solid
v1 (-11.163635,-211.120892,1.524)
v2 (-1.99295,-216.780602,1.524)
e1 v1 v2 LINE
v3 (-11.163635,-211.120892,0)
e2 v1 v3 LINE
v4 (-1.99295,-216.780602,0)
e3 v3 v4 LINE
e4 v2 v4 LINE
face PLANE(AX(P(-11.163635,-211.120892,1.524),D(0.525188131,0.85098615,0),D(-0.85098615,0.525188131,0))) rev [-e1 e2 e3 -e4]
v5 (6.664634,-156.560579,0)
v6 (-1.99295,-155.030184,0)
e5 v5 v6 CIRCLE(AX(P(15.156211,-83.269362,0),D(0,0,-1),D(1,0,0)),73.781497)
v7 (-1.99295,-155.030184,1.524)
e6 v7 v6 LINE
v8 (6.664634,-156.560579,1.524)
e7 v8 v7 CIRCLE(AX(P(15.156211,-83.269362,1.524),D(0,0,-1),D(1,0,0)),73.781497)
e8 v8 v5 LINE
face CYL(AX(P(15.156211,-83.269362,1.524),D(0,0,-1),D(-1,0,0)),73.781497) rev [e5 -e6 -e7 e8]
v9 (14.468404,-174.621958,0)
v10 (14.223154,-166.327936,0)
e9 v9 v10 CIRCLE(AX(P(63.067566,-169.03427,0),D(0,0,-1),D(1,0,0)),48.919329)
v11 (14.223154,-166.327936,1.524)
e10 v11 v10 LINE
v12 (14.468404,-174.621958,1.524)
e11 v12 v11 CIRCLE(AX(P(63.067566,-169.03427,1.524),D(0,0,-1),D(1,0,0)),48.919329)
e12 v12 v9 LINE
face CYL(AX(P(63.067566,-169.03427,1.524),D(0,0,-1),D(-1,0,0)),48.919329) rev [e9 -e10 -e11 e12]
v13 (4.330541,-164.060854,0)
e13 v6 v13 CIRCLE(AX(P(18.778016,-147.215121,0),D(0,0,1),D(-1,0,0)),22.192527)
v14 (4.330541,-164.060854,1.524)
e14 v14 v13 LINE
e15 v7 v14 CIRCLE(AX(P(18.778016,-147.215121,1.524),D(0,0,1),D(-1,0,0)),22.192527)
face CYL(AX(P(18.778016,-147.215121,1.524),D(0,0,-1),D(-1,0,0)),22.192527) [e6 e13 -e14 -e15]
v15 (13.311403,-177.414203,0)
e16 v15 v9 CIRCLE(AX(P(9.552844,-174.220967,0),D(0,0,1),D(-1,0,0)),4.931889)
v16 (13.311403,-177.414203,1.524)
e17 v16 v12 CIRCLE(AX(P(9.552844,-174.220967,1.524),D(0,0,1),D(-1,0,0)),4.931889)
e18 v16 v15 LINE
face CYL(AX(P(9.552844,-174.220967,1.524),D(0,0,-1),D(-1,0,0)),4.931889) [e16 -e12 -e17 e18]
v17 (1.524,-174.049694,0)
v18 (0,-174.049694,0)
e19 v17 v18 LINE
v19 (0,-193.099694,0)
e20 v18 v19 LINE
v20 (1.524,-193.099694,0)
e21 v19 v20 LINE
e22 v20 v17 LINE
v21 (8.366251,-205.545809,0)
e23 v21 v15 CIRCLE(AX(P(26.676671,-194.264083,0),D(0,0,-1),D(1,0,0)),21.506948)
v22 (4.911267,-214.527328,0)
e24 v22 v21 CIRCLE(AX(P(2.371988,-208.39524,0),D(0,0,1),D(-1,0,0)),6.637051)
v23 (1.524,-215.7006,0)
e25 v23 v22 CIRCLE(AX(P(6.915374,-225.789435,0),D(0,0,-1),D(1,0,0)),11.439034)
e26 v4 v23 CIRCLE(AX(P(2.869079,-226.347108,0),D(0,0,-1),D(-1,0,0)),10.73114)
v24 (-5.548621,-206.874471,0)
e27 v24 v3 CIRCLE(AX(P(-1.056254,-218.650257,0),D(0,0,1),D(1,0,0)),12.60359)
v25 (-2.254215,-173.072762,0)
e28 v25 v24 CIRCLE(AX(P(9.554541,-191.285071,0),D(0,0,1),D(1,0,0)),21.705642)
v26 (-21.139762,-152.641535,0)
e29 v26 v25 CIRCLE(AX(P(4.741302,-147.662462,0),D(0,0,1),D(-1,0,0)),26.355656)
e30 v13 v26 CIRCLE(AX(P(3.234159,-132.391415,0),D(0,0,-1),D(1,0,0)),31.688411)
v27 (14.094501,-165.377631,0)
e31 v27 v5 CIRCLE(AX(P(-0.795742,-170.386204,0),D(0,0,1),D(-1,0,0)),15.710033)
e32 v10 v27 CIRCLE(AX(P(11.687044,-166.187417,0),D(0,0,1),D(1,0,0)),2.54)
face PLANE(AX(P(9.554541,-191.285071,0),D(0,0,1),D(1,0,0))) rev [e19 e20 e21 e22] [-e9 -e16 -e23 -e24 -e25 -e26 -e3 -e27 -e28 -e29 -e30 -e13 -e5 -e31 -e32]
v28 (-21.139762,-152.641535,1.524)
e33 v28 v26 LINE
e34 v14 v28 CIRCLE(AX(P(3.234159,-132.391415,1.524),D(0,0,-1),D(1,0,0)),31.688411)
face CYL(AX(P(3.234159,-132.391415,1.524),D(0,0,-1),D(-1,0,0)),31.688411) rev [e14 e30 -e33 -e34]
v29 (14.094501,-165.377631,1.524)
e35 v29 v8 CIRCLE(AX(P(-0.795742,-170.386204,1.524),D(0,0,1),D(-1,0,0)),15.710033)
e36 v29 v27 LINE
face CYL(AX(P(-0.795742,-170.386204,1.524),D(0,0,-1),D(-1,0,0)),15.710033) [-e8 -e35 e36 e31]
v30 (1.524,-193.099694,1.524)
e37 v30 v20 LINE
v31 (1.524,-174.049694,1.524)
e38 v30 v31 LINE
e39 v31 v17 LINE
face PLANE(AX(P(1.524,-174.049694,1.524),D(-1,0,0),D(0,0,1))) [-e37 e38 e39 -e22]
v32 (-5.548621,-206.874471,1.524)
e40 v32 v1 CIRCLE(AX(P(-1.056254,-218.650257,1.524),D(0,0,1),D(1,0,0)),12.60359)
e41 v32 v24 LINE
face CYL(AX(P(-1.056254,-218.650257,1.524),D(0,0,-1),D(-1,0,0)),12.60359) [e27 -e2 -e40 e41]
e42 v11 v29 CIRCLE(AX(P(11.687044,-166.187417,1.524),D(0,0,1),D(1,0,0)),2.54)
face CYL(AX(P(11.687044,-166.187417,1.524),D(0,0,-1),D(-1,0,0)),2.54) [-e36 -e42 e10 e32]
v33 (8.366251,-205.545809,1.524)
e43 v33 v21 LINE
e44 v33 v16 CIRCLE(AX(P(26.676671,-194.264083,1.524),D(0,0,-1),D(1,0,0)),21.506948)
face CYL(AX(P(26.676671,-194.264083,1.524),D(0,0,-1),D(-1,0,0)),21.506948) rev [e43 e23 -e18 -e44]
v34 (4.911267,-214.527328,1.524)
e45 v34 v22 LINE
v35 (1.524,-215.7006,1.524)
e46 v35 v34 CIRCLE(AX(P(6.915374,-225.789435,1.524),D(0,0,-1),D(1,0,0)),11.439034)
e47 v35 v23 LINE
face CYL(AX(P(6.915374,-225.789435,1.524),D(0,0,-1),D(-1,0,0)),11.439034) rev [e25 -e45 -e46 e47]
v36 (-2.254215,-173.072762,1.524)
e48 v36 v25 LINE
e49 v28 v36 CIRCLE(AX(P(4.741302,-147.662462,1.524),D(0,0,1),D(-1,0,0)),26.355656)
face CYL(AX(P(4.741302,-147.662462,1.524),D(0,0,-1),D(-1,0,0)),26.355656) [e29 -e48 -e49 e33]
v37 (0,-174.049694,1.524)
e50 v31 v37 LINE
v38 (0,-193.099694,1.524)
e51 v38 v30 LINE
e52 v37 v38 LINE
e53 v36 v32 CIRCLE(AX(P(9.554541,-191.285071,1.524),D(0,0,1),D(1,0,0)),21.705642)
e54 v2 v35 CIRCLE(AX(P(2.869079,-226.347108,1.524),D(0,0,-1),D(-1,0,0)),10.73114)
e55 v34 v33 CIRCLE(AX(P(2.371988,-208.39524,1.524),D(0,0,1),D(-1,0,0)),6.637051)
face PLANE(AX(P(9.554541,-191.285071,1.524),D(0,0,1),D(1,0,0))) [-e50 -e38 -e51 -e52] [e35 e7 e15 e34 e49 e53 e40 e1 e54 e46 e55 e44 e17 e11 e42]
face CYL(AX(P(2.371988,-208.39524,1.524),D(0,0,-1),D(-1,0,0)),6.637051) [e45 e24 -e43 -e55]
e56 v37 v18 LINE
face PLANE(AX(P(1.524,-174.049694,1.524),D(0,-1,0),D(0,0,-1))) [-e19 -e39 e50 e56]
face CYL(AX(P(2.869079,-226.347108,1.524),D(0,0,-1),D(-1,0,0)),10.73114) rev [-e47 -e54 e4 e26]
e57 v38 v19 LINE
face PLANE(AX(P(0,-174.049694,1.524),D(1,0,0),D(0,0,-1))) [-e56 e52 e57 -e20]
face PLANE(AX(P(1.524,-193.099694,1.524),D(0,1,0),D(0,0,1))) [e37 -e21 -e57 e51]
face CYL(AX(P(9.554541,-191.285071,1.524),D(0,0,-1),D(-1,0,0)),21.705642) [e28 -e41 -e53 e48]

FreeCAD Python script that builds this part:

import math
import FreeCAD as App
import Part
import Sketcher
Q = App.Units.Quantity


def add_polygon(sketch, points):
    """Adds a closed chain of lines whose ends are joined by coincident constraints."""
    first, n = sketch.GeometryCount, len(points)
    for a, b in zip(points, points[1:] + points[:1]):
        sketch.addGeometry(Part.LineSegment(App.Vector(*a, 0), App.Vector(*b, 0)), False)
    for i in range(n):
        sketch.addConstraint(Sketcher.Constraint("Coincident", first + i, 2, first + (i + 1) % n, 1))

doc = App.newDocument("Part")
body = doc.addObject("PartDesign::Body", "Body")

# Sketch on XY plane
sketch1 = body.newObject("Sketcher::SketchObject", "Sketch")
sketch1.AttachmentSupport = (doc.getObject("XY_Plane"), [""])
sketch1.MapMode = "FlatFace"
sketch1.addGeometry(Part.LineSegment(App.Vector(-11.2, -211.1, 0), App.Vector(-2, -216.8, 0)), False)  # 0
sketch1.addGeometry(Part.ArcOfCircle(Part.Circle(App.Vector(2.9, -226.3, 0), App.Vector(0, 0, 1), 10.7), math.radians(97.2), math.radians(116.94)), False)  # 1
sketch1.addGeometry(Part.ArcOfCircle(Part.Circle(App.Vector(6.9, -225.8, 0), App.Vector(0, 0, 1), 11.4), math.radians(100.09), math.radians(118.12)), False)  # 2
sketch1.addGeometry(Part.ArcOfCircle(Part.Circle(App.Vector(2.4, -208.4, 0), App.Vector(0, 0, 1), 6.6), math.radians(-68), math.radians(25)), False)  # 3
sketch1.addGeometry(Part.ArcOfCircle(Part.Circle(App.Vector(26.7, -194.3, 0), App.Vector(0, 0, 1), 21.5), math.radians(128), math.radians(212)), False)  # 4
sketch1.addGeometry(Part.ArcOfCircle(Part.Circle(App.Vector(9.6, -174.2, 0), App.Vector(0, 0, 1), 4.9), math.radians(-40), math.radians(-5)), False)  # 5
sketch1.addGeometry(Part.ArcOfCircle(Part.Circle(App.Vector(63.1, -169, 0), App.Vector(0, 0, 1), 48.9), math.radians(176.83), math.radians(186.56)), False)  # 6
sketch1.addGeometry(Part.ArcOfCircle(Part.Circle(App.Vector(11.7, -166.2, 0), App.Vector(0, 0, 1), 2.5), math.radians(-3), math.radians(19)), False)  # 7
sketch1.addGeometry(Part.ArcOfCircle(Part.Circle(App.Vector(-0.8, -170.4, 0), App.Vector(0, 0, 1), 15.7), math.radians(19), math.radians(62)), False)  # 8
sketch1.addGeometry(Part.ArcOfCircle(Part.Circle(App.Vector(15.2, -83.3, 0), App.Vector(0, 0, 1), 73.8), math.radians(-103.44), math.radians(-96.61)), False)  # 9
sketch1.addGeometry(Part.ArcOfCircle(Part.Circle(App.Vector(18.8, -147.2, 0), App.Vector(0, 0, 1), 22.2), math.radians(-159), math.radians(-131)), False)  # 10
sketch1.addGeometry(Part.ArcOfCircle(Part.Circle(App.Vector(3.2, -132.4, 0), App.Vector(0, 0, 1), 31.7), math.radians(-140), math.radians(-88)), False)  # 11
sketch1.addGeometry(Part.ArcOfCircle(Part.Circle(App.Vector(4.7, -147.7, 0), App.Vector(0, 0, 1), 26.4), math.radians(-169), math.radians(-105)), False)  # 12
sketch1.addGeometry(Part.ArcOfCircle(Part.Circle(App.Vector(9.6, -191.3, 0), App.Vector(0, 0, 1), 21.7), math.radians(123), math.radians(226)), False)  # 13
sketch1.addGeometry(Part.ArcOfCircle(Part.Circle(App.Vector(-1.1, -218.7, 0), App.Vector(0, 0, 1), 12.6), math.radians(111), math.radians(143)), False)  # 14
add_polygon(sketch1, [(1.5, -193.1), (0, -193.1), (0, -174), (1.5, -174)])  # lines 15-18
sketch1.addConstraint([
    Sketcher.Constraint("Coincident", 0, 2, 1, 2),
    Sketcher.Constraint("Coincident", 1, 1, 2, 2),
    Sketcher.Constraint("Coincident", 2, 1, 3, 1),
    Sketcher.Constraint("Coincident", 3, 2, 4, 2),
    Sketcher.Constraint("Coincident", 4, 1, 5, 1),
    Sketcher.Constraint("Coincident", 5, 2, 6, 2),
    Sketcher.Constraint("Tangent", 6, 1, 7, 1),
    Sketcher.Constraint("Tangent", 7, 2, 8, 1),
    Sketcher.Constraint("Coincident", 8, 2, 9, 2),
    Sketcher.Constraint("Coincident", 9, 1, 10, 1),
    Sketcher.Constraint("Coincident", 10, 2, 11, 2),
    Sketcher.Constraint("Coincident", 11, 1, 12, 1),
    Sketcher.Constraint("Coincident", 12, 2, 13, 1),
    Sketcher.Constraint("Coincident", 13, 2, 14, 1),
    Sketcher.Constraint("Coincident", 14, 2, 0, 1),
    Sketcher.Constraint("Horizontal", 15),
    Sketcher.Constraint("Vertical", 16),
    Sketcher.Constraint("Horizontal", 17),
    Sketcher.Constraint("Vertical", 18),
    Sketcher.Constraint("PointOnObject", 15, 2, -2),
    Sketcher.Constraint("Vertical", 0, 2, 9, 1),
    Sketcher.Constraint("Vertical", 1, 1, 17, 2),
    Sketcher.Constraint("Radius", 7, Q("0.1 in")),
    Sketcher.Constraint("DistanceX", 15, 2, 15, 1, Q("0.06 in")),
    Sketcher.Constraint("DistanceY", 16, 1, 16, 2, Q("0.75 in")),
    Sketcher.Constraint("Radius", 1, 10.73114),
    Sketcher.Constraint("Radius", 3, 6.637051),
    Sketcher.Constraint("Radius", 4, 21.506948),
    Sketcher.Constraint("Radius", 5, 4.931889),
    Sketcher.Constraint("Radius", 6, 48.919329),
    Sketcher.Constraint("Radius", 11, 31.688411),
    Sketcher.Constraint("Radius", 14, 12.60359),
    Sketcher.Constraint("Radius", 2, 11.439034),
    Sketcher.Constraint("Radius", 8, 15.710033),
    Sketcher.Constraint("Radius", 9, 73.781497),
    Sketcher.Constraint("Radius", 10, 22.192527),
    Sketcher.Constraint("Radius", 12, 26.355656),
    Sketcher.Constraint("Radius", 13, 21.705642),
    Sketcher.Constraint("DistanceX", -1, 1, 12, 3, 4.741302),
    Sketcher.Constraint("DistanceY", 0, 2, -1, 1, 216.780602),
    Sketcher.Constraint("DistanceY", 1, 1, -1, 1, 215.7006),
    Sketcher.Constraint("DistanceX", -1, 1, 7, 2, 14.094501),
    Sketcher.Constraint("DistanceX", 5, 3, 7, 3, 2.134201),
    Sketcher.Constraint("DistanceX", 8, 3, 11, 3, 4.029901),
    Sketcher.Constraint("DistanceX", 0, 2, 3, 2, 10.359201),
    Sketcher.Constraint("DistanceY", 4, 1, 8, 3, 7.027999),
    Sketcher.Constraint("DistanceX", 4, 1, 5, 2, 1.157001),
    Sketcher.Constraint("Distance", 0, 10.776539),
    Sketcher.Constraint("DistanceX", -1, 1, 1, 3, 2.869079),
    Sketcher.Constraint("DistanceY", 3, 3, -1, 1, 208.39524),
    Sketcher.Constraint("DistanceX", -1, 1, 4, 3, 26.676671),
    Sketcher.Constraint("DistanceY", 6, 3, -1, 1, 169.03427),
    Sketcher.Constraint("DistanceX", -1, 1, 9, 3, 15.156211),
    Sketcher.Constraint("DistanceY", 10, 3, -1, 1, 147.215121),
    Sketcher.Constraint("DistanceX", -1, 1, 11, 3, 3.234159),
    Sketcher.Constraint("DistanceY", 12, 3, -1, 1, 147.662462),
    Sketcher.Constraint("DistanceX", -1, 1, 13, 3, 9.554541),
    Sketcher.Constraint("DistanceY", 13, 3, -1, 1, 191.285071),
    Sketcher.Constraint("DistanceY", 2, 1, -1, 1, 214.527328),
    Sketcher.Constraint("DistanceY", 3, 2, -1, 1, 205.545809),
    Sketcher.Constraint("DistanceY", 8, 2, -1, 1, 156.560579),
    Sketcher.Constraint("DistanceX", -1, 1, 10, 2, 4.330541),
    Sketcher.Constraint("DistanceX", 13, 2, -1, 1, 5.548621),
    Sketcher.Constraint("DistanceY", 14, 2, -1, 1, 211.120892),
    Sketcher.Constraint("DistanceY", 16, 2, 8, 3, 3.66349),
])
pad1 = body.newObject("PartDesign::Pad", "Pad")
pad1.Profile = sketch1
pad1.Length = Q("0.06 in")

doc.recompute()
